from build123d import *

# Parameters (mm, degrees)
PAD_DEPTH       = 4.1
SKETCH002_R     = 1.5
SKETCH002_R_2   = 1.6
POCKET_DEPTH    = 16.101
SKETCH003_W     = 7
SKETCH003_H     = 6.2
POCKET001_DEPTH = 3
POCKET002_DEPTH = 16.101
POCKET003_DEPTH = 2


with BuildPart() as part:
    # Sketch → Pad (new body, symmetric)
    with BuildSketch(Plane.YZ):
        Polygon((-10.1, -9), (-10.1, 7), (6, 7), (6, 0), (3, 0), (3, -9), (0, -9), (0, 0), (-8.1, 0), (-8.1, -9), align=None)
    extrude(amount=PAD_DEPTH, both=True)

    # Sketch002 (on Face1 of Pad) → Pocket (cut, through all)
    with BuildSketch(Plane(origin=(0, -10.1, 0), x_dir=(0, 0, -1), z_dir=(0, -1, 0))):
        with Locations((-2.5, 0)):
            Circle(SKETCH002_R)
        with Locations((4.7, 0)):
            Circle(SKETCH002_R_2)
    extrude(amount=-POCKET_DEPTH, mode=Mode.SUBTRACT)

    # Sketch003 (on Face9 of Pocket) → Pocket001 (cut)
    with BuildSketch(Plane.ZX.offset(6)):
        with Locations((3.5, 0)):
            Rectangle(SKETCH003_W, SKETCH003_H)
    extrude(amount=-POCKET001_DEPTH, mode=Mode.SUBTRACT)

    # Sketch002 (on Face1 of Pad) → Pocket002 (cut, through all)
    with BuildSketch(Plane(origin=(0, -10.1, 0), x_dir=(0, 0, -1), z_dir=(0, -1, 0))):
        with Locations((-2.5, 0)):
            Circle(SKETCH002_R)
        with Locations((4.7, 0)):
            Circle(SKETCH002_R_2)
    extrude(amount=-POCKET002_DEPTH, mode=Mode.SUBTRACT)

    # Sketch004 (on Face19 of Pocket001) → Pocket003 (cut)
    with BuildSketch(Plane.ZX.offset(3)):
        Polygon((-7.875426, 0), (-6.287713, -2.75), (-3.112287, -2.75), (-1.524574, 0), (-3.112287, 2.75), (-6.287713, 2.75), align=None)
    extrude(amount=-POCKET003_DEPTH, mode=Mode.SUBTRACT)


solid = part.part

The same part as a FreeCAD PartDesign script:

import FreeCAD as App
import Part
import Sketcher
Q = App.Units.Quantity

doc = App.newDocument("Part")
body = doc.addObject("PartDesign::Body", "Body")

# Sketch on YZ plane
sketch1 = doc.addObject("Sketcher::SketchObject", "Sketch")
body.addObject(sketch1)
sketch1.AttachmentSupport = (doc.YZ_Plane, [""])
sketch1.MapMode = "FlatFace"
sketch1.addGeometry([
    Part.LineSegment(App.Vector(-10.1, 7, 0), App.Vector(-10.1, -9, 0)),  # 0
    Part.LineSegment(App.Vector(-10.1, -9, 0), App.Vector(-8.1, -9, 0)),  # 1
    Part.LineSegment(App.Vector(-8.1, -9, 0), App.Vector(-8.1, 0, 0)),  # 2
    Part.LineSegment(App.Vector(-8.1, 0, 0), App.Vector(0, 0, 0)),  # 3
    Part.LineSegment(App.Vector(0, 0, 0), App.Vector(0, -9, 0)),  # 4
    Part.LineSegment(App.Vector(0, -9, 0), App.Vector(3, -9, 0)),  # 5
    Part.LineSegment(App.Vector(3, -9, 0), App.Vector(3, 0, 0)),  # 6
    Part.LineSegment(App.Vector(3, 0, 0), App.Vector(6, 0, 0)),  # 7
    Part.LineSegment(App.Vector(6, 0, 0), App.Vector(6, 7, 0)),  # 8
    Part.LineSegment(App.Vector(6, 7, 0), App.Vector(-10.1, 7, 0)),  # 9
], False)
sketch1.addConstraint([
    Sketcher.Constraint("Coincident", 0, 2, 1, 1),
    Sketcher.Constraint("Coincident", 1, 2, 2, 1),
    Sketcher.Constraint("Coincident", 2, 2, 3, 1),
    Sketcher.Constraint("Coincident", 3, 2, 4, 1),
    Sketcher.Constraint("Coincident", 4, 2, 5, 1),
    Sketcher.Constraint("Coincident", 5, 2, 6, 1),
    Sketcher.Constraint("Coincident", 6, 2, 7, 1),
    Sketcher.Constraint("Coincident", 7, 2, 8, 1),
    Sketcher.Constraint("Coincident", 8, 2, 9, 1),
    Sketcher.Constraint("Coincident", 9, 2, 0, 1),
    Sketcher.Constraint("Vertical", 0),
    Sketcher.Constraint("Horizontal", 1),
    Sketcher.Constraint("Vertical", 2),
    Sketcher.Constraint("Horizontal", 3),
    Sketcher.Constraint("Vertical", 4),
    Sketcher.Constraint("Horizontal", 5),
    Sketcher.Constraint("Vertical", 6),
    Sketcher.Constraint("Horizontal", 7),
    Sketcher.Constraint("Vertical", 8),
    Sketcher.Constraint("Horizontal", 9),
    Sketcher.Constraint("Coincident", 3, 2, -1, 1),
    Sketcher.Constraint("PointOnObject", 6, 2, -1),
    Sketcher.Constraint("Horizontal", 1, 2, 4, 2),
    Sketcher.Constraint("Equal", 5, 7),
    Sketcher.Constraint("DistanceX", 1, 1, 1, 2, Q("2 mm")),
    Sketcher.Constraint("DistanceX", 5, 1, 5, 2, Q("3 mm")),
    Sketcher.Constraint("DistanceY", 0, 2, 0, 1, Q("16 mm")),
    Sketcher.Constraint("DistanceY", 2, 1, 2, 2, Q("9 mm")),
    Sketcher.Constraint("DistanceX", 3, 1, 3, 2, Q("8.1 mm")),
])
pad1 = doc.addObject("PartDesign::Pad", "Pad")
body.addObject(pad1)
pad1.Profile = sketch1
pad1.Length = 8.2
pad1.Midplane = True

# Sketch on XZ plane
sketch2 = doc.addObject("Sketcher::SketchObject", "Sketch001")
body.addObject(sketch2)
sketch2.AttachmentSupport = (doc.XZ_Plane, [""])
sketch2.MapMode = "FlatFace"
sketch2.AttachmentOffset = App.Placement(App.Vector(0, 0, 10.1), App.Rotation())
sketch2.addGeometry([
    Part.Circle(App.Vector(0, 2.5, 0), App.Vector(0, 0, 1), 1.5),
    Part.Circle(App.Vector(0, -4.7, 0), App.Vector(0, 0, 1), 1.6),
], False)
sketch2.addConstraint([
    Sketcher.Constraint("PointOnObject", 0, 3, -2),
    Sketcher.Constraint("PointOnObject", 1, 3, -2),
    Sketcher.Constraint("Diameter", 0, Q("3 mm")),
    Sketcher.Constraint("Diameter", 1, Q("3.2 mm")),
    Sketcher.Constraint("DistanceY", -1, 1, 0, 3, Q("2.5 mm")),
    Sketcher.Constraint("DistanceY", 1, 3, -1, 1, Q("4.7 mm")),
])
pocket1 = doc.addObject("PartDesign::Pocket", "Pocket")
body.addObject(pocket1)
pocket1.Profile = sketch2
pocket1.Type = "ThroughAll"

# Sketch on XZ plane
sketch3 = doc.addObject("Sketcher::SketchObject", "Sketch002")
body.addObject(sketch3)
sketch3.AttachmentSupport = (doc.XZ_Plane, [""])
sketch3.MapMode = "FlatFace"
sketch3.AttachmentOffset = App.Placement(App.Vector(0, 0, -6), App.Rotation())
sketch3.addGeometry([
    Part.LineSegment(App.Vector(3, 0, 0), App.Vector(-3, 0, 0)),
    Part.LineSegment(App.Vector(-3, 0, 0), App.Vector(-3, 7, 0)),
    Part.LineSegment(App.Vector(-3, 7, 0), App.Vector(3, 7, 0)),
    Part.LineSegment(App.Vector(3, 7, 0), App.Vector(3, 0, 0)),
], False)
sketch3.addConstraint([
    Sketcher.Constraint("Coincident", 0, 2, 1, 1),
    Sketcher.Constraint("Coincident", 1, 2, 2, 1),
    Sketcher.Constraint("Coincident", 2, 2, 3, 1),
    Sketcher.Constraint("Coincident", 3, 2, 0, 1),
    Sketcher.Constraint("Horizontal", 0),
    Sketcher.Constraint("Vertical", 1),
    Sketcher.Constraint("Horizontal", 2),
    Sketcher.Constraint("Vertical", 3),
    Sketcher.Constraint("Symmetric", 0, 2, 3, 2, -1, 1),
    Sketcher.Constraint("DistanceY", 1, 1, 1, 2, Q("7 mm")),
    Sketcher.Constraint("DistanceX", 0, 2, 0, 1, Q("6.2 mm")),
])
pocket2 = doc.addObject("PartDesign::Pocket", "Pocket001")
body.addObject(pocket2)
pocket2.Profile = sketch3
pocket2.Length = 3
pocket2.Reversed = True

# Sketch on XZ plane
sketch4 = doc.addObject("Sketcher::SketchObject", "Sketch003")
body.addObject(sketch4)
sketch4.AttachmentSupport = (doc.XZ_Plane, [""])
sketch4.MapMode = "FlatFace"
sketch4.AttachmentOffset = App.Placement(App.Vector(0, 0, 10.1), App.Rotation())
sketch4.addGeometry([
    Part.Circle(App.Vector(0, 2.5, 0), App.Vector(0, 0, 1), 1.5),
    Part.Circle(App.Vector(0, -4.7, 0), App.Vector(0, 0, 1), 1.6),
], False)
sketch4.addConstraint([
    Sketcher.Constraint("PointOnObject", 0, 3, -2),
    Sketcher.Constraint("PointOnObject", 1, 3, -2),
    Sketcher.Constraint("Diameter", 0, Q("3 mm")),
    Sketcher.Constraint("Diameter", 1, Q("3.2 mm")),
    Sketcher.Constraint("DistanceY", -1, 1, 0, 3, Q("2.5 mm")),
    Sketcher.Constraint("DistanceY", 1, 3, -1, 1, Q("4.7 mm")),
])
pocket3 = doc.addObject("PartDesign::Pocket", "Pocket002")
body.addObject(pocket3)
pocket3.Profile = sketch4
pocket3.Type = "ThroughAll"

# Sketch on XZ plane
sketch5 = doc.addObject("Sketcher::SketchObject", "Sketch004")
body.addObject(sketch5)
sketch5.AttachmentSupport = (doc.XZ_Plane, [""])
sketch5.MapMode = "FlatFace"
sketch5.AttachmentOffset = App.Placement(App.Vector(0, 0, -3), App.Rotation())
sketch5.addGeometry([
    Part.LineSegment(App.Vector(0, -7.9, 0), App.Vector(-2.8, -6.3, 0)),  # 0
    Part.LineSegment(App.Vector(-2.8, -6.3, 0), App.Vector(-2.8, -3.1, 0)),  # 1
    Part.LineSegment(App.Vector(-2.8, -3.1, 0), App.Vector(0, -1.5, 0)),  # 2
    Part.LineSegment(App.Vector(0, -1.5, 0), App.Vector(2.8, -3.1, 0)),  # 3
    Part.LineSegment(App.Vector(2.8, -3.1, 0), App.Vector(2.8, -6.3, 0)),  # 4
    Part.LineSegment(App.Vector(2.8, -6.3, 0), App.Vector(0, -7.9, 0)),  # 5
], False)
sketch5.addConstraint([
    Sketcher.Constraint("Coincident", 0, 2, 1, 1),
    Sketcher.Constraint("Coincident", 1, 2, 2, 1),
    Sketcher.Constraint("Coincident", 2, 2, 3, 1),
    Sketcher.Constraint("Coincident", 3, 2, 4, 1),
    Sketcher.Constraint("Coincident", 4, 2, 5, 1),
    Sketcher.Constraint("Coincident", 5, 2, 0, 1),
    Sketcher.Constraint("Vertical", 1),
    Sketcher.Constraint("Vertical", 4),
    Sketcher.Constraint("Symmetric", 1, 2, 3, 2, -2),
    Sketcher.Constraint("PointOnObject", 2, 2, -2),
    Sketcher.Constraint("PointOnObject", 5, 2, -2),
    Sketcher.Constraint("Parallel", 0, 3),
    Sketcher.Constraint("Parallel", 2, 5),
    Sketcher.Constraint("Angle", 0, Q("150.000004 deg")),
    Sketcher.Constraint("DistanceX", 1, 2, 3, 2, Q("5.5 mm")),
    Sketcher.Constraint("DistanceY", 1, 1, 1, 2, Q("3.175426 mm")),
    Sketcher.Constraint("DistanceY", 0, 2, -1, 1, Q("6.287713 mm")),
])
pocket4 = doc.addObject("PartDesign::Pocket", "Pocket003")
body.addObject(pocket4)
pocket4.Profile = sketch5
pocket4.Length = 2
pocket4.Reversed = True

doc.recompute()
